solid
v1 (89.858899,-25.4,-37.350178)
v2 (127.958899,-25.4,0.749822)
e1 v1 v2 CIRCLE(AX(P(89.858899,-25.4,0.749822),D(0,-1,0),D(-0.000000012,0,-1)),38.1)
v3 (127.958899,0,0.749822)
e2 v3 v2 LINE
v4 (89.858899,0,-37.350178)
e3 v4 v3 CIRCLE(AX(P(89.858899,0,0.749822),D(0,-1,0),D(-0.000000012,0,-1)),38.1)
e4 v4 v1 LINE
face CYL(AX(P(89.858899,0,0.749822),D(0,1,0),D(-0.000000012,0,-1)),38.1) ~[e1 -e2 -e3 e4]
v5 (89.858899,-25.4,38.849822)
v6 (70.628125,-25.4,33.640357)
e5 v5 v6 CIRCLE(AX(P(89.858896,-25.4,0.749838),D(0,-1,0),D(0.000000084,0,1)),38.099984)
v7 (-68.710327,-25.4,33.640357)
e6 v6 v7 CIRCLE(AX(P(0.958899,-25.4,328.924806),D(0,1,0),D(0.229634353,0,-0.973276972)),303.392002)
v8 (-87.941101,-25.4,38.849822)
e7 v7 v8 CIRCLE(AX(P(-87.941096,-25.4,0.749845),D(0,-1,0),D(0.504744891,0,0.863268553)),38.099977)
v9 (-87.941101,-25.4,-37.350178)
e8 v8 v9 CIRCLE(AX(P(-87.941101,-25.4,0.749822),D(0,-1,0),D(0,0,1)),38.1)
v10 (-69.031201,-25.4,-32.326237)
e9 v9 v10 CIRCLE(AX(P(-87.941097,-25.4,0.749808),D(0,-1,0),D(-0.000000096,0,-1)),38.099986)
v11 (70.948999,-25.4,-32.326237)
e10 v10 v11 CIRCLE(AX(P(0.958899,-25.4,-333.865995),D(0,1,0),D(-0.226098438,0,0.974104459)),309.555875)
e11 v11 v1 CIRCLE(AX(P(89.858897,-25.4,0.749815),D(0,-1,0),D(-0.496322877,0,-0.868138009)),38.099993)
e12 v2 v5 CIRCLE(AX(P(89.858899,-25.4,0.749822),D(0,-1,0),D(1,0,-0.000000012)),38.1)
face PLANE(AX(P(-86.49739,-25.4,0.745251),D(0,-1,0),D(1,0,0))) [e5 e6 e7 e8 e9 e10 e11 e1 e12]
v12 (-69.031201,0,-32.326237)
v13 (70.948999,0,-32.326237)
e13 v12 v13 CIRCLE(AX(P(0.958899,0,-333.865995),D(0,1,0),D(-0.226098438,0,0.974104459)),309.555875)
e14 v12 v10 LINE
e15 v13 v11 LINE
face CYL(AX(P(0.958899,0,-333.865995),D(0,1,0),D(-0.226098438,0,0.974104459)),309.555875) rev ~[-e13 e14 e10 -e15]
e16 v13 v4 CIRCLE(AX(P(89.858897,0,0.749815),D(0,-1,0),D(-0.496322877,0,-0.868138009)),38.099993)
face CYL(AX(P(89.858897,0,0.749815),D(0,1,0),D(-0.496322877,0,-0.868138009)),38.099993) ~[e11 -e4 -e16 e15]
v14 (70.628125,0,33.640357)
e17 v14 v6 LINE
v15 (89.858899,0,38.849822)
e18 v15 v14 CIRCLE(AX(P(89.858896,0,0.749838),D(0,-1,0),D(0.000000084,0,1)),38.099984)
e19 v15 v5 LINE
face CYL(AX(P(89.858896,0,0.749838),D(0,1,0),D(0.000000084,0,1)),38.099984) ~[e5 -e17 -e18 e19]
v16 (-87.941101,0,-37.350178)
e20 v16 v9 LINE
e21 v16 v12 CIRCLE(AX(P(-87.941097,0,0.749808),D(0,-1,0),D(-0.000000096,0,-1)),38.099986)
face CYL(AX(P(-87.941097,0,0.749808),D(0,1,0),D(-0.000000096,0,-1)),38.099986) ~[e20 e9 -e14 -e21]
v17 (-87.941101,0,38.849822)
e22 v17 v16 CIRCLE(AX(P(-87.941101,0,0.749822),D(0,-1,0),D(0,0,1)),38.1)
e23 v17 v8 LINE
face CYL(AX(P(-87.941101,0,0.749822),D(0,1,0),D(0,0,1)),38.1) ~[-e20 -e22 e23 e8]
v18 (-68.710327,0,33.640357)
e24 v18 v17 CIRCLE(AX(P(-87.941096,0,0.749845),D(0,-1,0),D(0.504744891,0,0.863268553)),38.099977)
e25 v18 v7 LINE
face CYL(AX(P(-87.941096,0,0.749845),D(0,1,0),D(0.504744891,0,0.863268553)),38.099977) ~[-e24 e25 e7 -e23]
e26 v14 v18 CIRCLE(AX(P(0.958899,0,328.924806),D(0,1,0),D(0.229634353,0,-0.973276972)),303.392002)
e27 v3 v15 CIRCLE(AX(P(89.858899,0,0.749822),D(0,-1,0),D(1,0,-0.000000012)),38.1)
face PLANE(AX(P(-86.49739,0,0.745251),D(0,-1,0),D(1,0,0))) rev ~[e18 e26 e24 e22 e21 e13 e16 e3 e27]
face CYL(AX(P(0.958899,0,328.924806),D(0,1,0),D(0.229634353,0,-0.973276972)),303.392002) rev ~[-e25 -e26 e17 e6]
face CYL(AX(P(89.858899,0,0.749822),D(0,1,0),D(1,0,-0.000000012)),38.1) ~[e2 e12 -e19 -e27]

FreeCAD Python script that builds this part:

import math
import FreeCAD as App
import Part
import Sketcher
Q = App.Units.Quantity

doc = App.newDocument("Part")
body = doc.addObject("PartDesign::Body", "Body")

# Sketch on XZ plane
sketch1 = doc.addObject("Sketcher::SketchObject", "Sketch")
body.addObject(sketch1)
sketch1.AttachmentSupport = (doc.XZ_Plane, [""])
sketch1.MapMode = "FlatFace"
sketch1.addGeometry([
    Part.ArcOfCircle(Part.Circle(App.Vector(-87.941101, 0.749822, 0), App.Vector(0, 0, 1), 38.1), math.radians(90), math.radians(270)),  # 0
    Part.ArcOfCircle(Part.Circle(App.Vector(-87.941097, 0.749808, 0), App.Vector(0, 0, 1), 38.099986), math.radians(-90.000005), math.radians(-60.242977)),  # 1
    Part.ArcOfCircle(Part.Circle(App.Vector(0.958899, -333.865995, 0), App.Vector(0, 0, 1), 309.555875), math.radians(76.932521), math.radians(103.067479)),  # 2
    Part.ArcOfCircle(Part.Circle(App.Vector(89.858897, 0.749815, 0), App.Vector(0, 0, 1), 38.099993), math.radians(-119.75702), math.radians(-89.999997)),  # 3
    Part.ArcOfCircle(Part.Circle(App.Vector(89.858899, 0.749822, 0), App.Vector(0, 0, 1), 38.1), math.radians(-90.000001), math.radians(0.000001)),  # 4
    Part.ArcOfCircle(Part.Circle(App.Vector(89.858899, 0.749822, 0), App.Vector(0, 0, 1), 38.1), math.radians(-0.000001), math.radians(90.000001)),  # 5
    Part.ArcOfCircle(Part.Circle(App.Vector(89.858896, 0.749838, 0), App.Vector(0, 0, 1), 38.099984), math.radians(89.999995), math.radians(120.314416)),  # 6
    Part.ArcOfCircle(Part.Circle(App.Vector(0.958899, 328.924806, 0), App.Vector(0, 0, 1), 303.392002), math.radians(-103.275546), math.radians(-76.724454)),  # 7
    Part.ArcOfCircle(Part.Circle(App.Vector(-87.941096, 0.749845, 0), App.Vector(0, 0, 1), 38.099977), math.radians(59.685581), math.radians(90.000008)),  # 8
], False)
sketch1.addConstraint([
    Sketcher.Constraint("Coincident", 0, 2, 1, 1),
    Sketcher.Constraint("Coincident", 1, 2, 2, 2),
    Sketcher.Constraint("Coincident", 2, 1, 3, 1),
    Sketcher.Constraint("Coincident", 3, 2, 4, 1),
    Sketcher.Constraint("Coincident", 4, 2, 5, 1),
    Sketcher.Constraint("Coincident", 5, 2, 6, 1),
    Sketcher.Constraint("Coincident", 6, 2, 7, 2),
    Sketcher.Constraint("Coincident", 7, 1, 8, 1),
    Sketcher.Constraint("Coincident", 8, 2, 0, 1),
    Sketcher.Constraint("Coincident", 4, 3, 3, 3),
    Sketcher.Constraint("Coincident", 5, 3, 3, 3),
    Sketcher.Constraint("Radius", 0, Q("1.5 in")),
    Sketcher.Constraint("Radius", 4, Q("1.5 in")),
    Sketcher.Constraint("DistanceX", 0, 3, 3, 3, Q("6.9999999 in")),
    Sketcher.Constraint("DistanceX", 1, 3, 4, 3, Q("6.9999999 in")),
    Sketcher.Constraint("DistanceX", 0, 3, 6, 3, Q("6.9999999 in")),
    Sketcher.Constraint("DistanceX", 8, 3, 5, 3, Q("6.9999998 in")),
    Sketcher.Constraint("DistanceX", 0, 2, 3, 3, Q("6.9999999 in")),
    Sketcher.Constraint("DistanceX", 1, 3, 2, 3, Q("3.4999999 in")),
    Sketcher.Constraint("DistanceX", 7, 3, 6, 3, Q("3.4999999 in")),
    Sketcher.Constraint("DistanceX", 3, 2, 4, 2, Q("1.5 in")),
    Sketcher.Constraint("DistanceY", 3, 2, 4, 2, Q("1.5 in")),
    Sketcher.Constraint("DistanceX", 5, 2, 4, 2, Q("1.5 in")),
    Sketcher.Constraint("Radius", 7, Q("303.392002 mm")),
    Sketcher.Constraint("Radius", 1, Q("38.099986 mm")),
    Sketcher.Constraint("Radius", 2, Q("309.555875 mm")),
    Sketcher.Constraint("Radius", 6, Q("38.099984 mm")),
    Sketcher.Constraint("Radius", 8, Q("38.099977 mm")),
    Sketcher.Constraint("DistanceX", 0, 3, -1, 1, Q("87.941101 mm")),
    Sketcher.Constraint("DistanceX", 1, 2, -1, 1, Q("69.031201 mm")),
    Sketcher.Constraint("DistanceX", -1, 1, 2, 1, Q("70.948999 mm")),
    Sketcher.Constraint("DistanceX", 8, 2, -1, 1, Q("87.941101 mm")),
    Sketcher.Constraint("DistanceY", -1, 1, 0, 3, Q("0.749822 mm")),
    Sketcher.Constraint("DistanceY", 6, 3, 7, 3, Q("328.174968 mm")),
])
pad1 = doc.addObject("PartDesign::Pad", "Pad")
body.addObject(pad1)
pad1.Profile = sketch1
pad1.Length = Q("1 in")

doc.recompute()
